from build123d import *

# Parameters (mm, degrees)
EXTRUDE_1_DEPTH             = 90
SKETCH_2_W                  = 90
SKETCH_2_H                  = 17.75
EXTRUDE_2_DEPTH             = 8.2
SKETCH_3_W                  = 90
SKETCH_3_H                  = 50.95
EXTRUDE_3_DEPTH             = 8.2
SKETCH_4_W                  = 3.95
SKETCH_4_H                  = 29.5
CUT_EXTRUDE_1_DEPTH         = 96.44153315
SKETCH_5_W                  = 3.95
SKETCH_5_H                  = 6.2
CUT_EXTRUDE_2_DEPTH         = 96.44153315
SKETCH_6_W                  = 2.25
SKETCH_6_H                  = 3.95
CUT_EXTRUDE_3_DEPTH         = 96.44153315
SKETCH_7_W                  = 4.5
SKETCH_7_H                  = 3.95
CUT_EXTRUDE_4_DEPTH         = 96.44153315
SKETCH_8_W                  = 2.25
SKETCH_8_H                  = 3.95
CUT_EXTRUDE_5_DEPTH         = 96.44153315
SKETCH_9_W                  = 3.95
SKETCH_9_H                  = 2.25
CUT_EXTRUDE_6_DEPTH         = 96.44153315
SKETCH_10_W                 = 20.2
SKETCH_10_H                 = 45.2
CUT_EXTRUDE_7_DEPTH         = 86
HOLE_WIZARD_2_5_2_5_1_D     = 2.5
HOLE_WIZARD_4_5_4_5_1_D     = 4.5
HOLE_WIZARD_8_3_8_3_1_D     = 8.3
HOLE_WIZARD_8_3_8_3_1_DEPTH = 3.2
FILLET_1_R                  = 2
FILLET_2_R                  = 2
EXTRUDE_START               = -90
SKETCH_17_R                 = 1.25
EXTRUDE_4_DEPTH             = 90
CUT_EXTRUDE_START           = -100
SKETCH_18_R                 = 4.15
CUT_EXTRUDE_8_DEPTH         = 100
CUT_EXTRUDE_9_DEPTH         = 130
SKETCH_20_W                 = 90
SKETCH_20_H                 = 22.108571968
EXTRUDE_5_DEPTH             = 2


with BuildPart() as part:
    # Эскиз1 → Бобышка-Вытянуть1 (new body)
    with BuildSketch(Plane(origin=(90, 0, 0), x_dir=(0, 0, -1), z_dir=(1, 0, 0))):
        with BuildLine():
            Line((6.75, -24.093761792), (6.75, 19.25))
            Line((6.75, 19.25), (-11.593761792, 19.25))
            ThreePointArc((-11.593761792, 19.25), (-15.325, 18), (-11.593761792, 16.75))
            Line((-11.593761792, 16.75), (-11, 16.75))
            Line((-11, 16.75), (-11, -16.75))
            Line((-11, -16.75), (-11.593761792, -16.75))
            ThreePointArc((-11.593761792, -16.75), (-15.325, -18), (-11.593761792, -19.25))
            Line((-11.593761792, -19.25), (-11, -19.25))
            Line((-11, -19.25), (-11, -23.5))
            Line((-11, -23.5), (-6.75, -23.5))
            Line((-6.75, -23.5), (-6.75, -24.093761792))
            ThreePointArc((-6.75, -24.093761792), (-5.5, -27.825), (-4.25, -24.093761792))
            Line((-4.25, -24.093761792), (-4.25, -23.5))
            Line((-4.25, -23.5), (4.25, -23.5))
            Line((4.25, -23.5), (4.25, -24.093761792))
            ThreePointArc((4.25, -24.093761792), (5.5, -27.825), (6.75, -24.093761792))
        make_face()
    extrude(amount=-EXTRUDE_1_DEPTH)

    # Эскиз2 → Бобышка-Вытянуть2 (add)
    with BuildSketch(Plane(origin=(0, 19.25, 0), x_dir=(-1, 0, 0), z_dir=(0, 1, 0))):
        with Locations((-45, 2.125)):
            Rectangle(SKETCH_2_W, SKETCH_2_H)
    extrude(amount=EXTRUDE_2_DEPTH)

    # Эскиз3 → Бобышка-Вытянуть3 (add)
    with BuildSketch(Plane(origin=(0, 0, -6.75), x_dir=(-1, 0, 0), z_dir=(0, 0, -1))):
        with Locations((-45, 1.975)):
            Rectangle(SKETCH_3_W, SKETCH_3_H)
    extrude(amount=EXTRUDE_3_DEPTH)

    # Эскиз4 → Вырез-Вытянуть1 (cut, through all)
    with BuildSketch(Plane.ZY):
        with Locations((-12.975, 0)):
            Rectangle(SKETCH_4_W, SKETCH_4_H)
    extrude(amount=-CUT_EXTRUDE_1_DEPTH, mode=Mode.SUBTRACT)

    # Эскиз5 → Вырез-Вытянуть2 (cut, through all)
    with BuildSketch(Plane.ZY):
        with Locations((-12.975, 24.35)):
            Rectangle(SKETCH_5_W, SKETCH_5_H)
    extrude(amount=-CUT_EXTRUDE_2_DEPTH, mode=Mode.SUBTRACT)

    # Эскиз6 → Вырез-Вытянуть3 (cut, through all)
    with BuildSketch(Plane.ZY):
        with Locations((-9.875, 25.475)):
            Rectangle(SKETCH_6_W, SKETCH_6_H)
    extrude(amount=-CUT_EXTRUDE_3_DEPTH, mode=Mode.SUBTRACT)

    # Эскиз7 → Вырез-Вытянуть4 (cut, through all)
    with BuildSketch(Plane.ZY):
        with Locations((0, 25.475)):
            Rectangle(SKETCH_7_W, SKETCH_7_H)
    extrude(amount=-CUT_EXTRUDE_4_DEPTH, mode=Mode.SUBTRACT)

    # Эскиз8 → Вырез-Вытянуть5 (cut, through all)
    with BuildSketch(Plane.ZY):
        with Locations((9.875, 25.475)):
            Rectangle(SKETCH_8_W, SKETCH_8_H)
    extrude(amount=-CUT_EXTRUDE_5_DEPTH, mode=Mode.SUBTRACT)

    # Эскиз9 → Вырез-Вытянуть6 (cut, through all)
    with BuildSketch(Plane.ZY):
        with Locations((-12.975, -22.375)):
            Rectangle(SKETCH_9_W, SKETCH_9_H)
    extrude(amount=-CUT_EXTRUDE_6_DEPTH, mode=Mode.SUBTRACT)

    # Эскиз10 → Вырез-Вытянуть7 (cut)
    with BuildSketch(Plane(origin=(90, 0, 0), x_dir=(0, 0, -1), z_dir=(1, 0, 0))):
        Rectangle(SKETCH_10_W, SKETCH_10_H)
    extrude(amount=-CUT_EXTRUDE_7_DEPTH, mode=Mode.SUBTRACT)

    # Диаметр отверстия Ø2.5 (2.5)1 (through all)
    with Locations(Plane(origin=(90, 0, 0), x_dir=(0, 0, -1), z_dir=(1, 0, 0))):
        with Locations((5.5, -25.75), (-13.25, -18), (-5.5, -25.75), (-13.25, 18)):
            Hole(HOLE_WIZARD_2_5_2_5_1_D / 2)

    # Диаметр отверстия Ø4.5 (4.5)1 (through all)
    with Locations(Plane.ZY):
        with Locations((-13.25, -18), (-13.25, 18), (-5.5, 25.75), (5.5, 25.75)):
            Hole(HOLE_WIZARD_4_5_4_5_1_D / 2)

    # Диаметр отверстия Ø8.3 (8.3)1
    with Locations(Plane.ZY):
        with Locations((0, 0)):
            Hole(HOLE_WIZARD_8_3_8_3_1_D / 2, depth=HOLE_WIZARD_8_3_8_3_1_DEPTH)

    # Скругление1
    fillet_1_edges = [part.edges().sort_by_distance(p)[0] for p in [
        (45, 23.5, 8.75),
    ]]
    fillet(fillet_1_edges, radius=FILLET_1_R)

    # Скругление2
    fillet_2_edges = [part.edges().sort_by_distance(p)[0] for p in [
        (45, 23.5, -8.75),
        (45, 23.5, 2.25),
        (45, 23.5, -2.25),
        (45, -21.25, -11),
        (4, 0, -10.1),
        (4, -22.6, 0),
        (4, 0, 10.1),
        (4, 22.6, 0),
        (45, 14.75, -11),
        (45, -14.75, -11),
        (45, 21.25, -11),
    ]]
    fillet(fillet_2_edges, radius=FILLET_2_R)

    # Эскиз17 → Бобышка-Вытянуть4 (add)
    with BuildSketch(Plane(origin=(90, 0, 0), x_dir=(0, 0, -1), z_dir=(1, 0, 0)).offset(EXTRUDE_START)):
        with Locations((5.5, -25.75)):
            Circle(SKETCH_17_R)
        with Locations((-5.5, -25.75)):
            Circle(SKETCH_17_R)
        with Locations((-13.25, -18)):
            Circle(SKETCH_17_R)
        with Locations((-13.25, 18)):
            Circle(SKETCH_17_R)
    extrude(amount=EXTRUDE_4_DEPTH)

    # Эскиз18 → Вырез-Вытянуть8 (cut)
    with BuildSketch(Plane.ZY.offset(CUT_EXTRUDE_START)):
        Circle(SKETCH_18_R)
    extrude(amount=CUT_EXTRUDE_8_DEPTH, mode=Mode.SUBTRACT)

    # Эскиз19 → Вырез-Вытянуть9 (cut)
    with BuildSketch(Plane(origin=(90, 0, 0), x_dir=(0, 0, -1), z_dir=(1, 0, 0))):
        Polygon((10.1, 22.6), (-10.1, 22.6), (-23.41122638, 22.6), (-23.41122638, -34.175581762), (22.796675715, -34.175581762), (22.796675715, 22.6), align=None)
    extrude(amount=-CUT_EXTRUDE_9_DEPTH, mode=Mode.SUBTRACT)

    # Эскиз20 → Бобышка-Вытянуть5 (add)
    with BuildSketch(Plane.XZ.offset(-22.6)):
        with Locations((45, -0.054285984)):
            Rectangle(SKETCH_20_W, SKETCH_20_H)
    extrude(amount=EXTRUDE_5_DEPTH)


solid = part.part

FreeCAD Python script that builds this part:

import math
import FreeCAD as App
import Part
import Sketcher
from FreeCAD import Vector


def edges_at(feature, points):
    """Names of the edges that pass closest to the given points."""
    edges = feature.Shape.Edges
    near = lambda p: min(range(len(edges)), key=lambda i: edges[i].distToShape(Part.Vertex(*p))[0])
    return sorted({f"Edge{near(p) + 1}" for p in points})


def add_polygon(sketch, points):
    """Adds a closed chain of lines whose ends are joined by coincident constraints."""
    first, n = sketch.GeometryCount, len(points)
    for a, b in zip(points, points[1:] + points[:1]):
        sketch.addGeometry(Part.LineSegment(App.Vector(*a, 0), App.Vector(*b, 0)), False)
    for i in range(n):
        sketch.addConstraint(Sketcher.Constraint("Coincident", first + i, 2, first + (i + 1) % n, 1))

doc = App.newDocument("Part")
body = doc.addObject("PartDesign::Body", "Body")

sketch1 = body.newObject("Sketcher::SketchObject", "Sketch")
sketch1.AttachmentSupport = (doc.getObject("YZ_Plane"), [""])
sketch1.MapMode = "FlatFace"
sketch1.AttachmentOffset = App.Placement(Vector(0, 0, 90), App.Rotation())
sketch1.addGeometry([
    Part.LineSegment(Vector(-24.093762, -6.75, 0), Vector(19.25, -6.75, 0)),
    Part.LineSegment(Vector(19.25, -6.75, 0), Vector(19.25, 11.593762, 0)),
    Part.ArcOfCircle(Part.Circle(Vector(18, 13.25, 0), Vector(0, 0, 1), 2.075), math.radians(-52.957329), math.radians(232.957329)),
    Part.LineSegment(Vector(16.75, 11.593762, 0), Vector(16.75, 11, 0)),
    Part.LineSegment(Vector(16.75, 11, 0), Vector(-16.75, 11, 0)),
    Part.LineSegment(Vector(-16.75, 11, 0), Vector(-16.75, 11.593762, 0)),
    Part.ArcOfCircle(Part.Circle(Vector(-18, 13.25, 0), Vector(0, 0, 1), 2.075), math.radians(-52.957329), math.radians(232.957329)),
    Part.LineSegment(Vector(-19.25, 11.593762, 0), Vector(-19.25, 11, 0)),
    Part.LineSegment(Vector(-19.25, 11, 0), Vector(-23.5, 11, 0)),
    Part.LineSegment(Vector(-23.5, 11, 0), Vector(-23.5, 6.75, 0)),
    Part.LineSegment(Vector(-23.5, 6.75, 0), Vector(-24.093762, 6.75, 0)),
    Part.ArcOfCircle(Part.Circle(Vector(-25.75, 5.5, 0), Vector(0, 0, 1), 2.075), math.radians(37.042671), math.radians(322.957329)),
    Part.LineSegment(Vector(-24.093762, 4.25, 0), Vector(-23.5, 4.25, 0)),
    Part.LineSegment(Vector(-23.5, 4.25, 0), Vector(-23.5, -4.25, 0)),
    Part.LineSegment(Vector(-23.5, -4.25, 0), Vector(-24.093762, -4.25, 0)),
    Part.ArcOfCircle(Part.Circle(Vector(-25.75, -5.5, 0), Vector(0, 0, 1), 2.075), math.radians(37.042671), math.radians(322.957329)),
], False)
sketch1.addConstraint([
    Sketcher.Constraint("Coincident", 0, 2, 1, 1),
    Sketcher.Constraint("Coincident", 1, 2, 2, 1),
    Sketcher.Constraint("Coincident", 2, 2, 3, 1),
    Sketcher.Constraint("Coincident", 3, 2, 4, 1),
    Sketcher.Constraint("Coincident", 4, 2, 5, 1),
    Sketcher.Constraint("Coincident", 5, 2, 6, 1),
    Sketcher.Constraint("Coincident", 6, 2, 7, 1),
    Sketcher.Constraint("Coincident", 7, 2, 8, 1),
    Sketcher.Constraint("Coincident", 8, 2, 9, 1),
    Sketcher.Constraint("Coincident", 9, 2, 10, 1),
    Sketcher.Constraint("Coincident", 10, 2, 11, 1),
    Sketcher.Constraint("Coincident", 11, 2, 12, 1),
    Sketcher.Constraint("Coincident", 12, 2, 13, 1),
    Sketcher.Constraint("Coincident", 13, 2, 14, 1),
    Sketcher.Constraint("Coincident", 14, 2, 15, 1),
    Sketcher.Constraint("Coincident", 15, 2, 0, 1),
    Sketcher.Constraint("Horizontal", 0),
    Sketcher.Constraint("Vertical", 1),
    Sketcher.Constraint("Vertical", 3),
    Sketcher.Constraint("Horizontal", 4),
    Sketcher.Constraint("Vertical", 5),
    Sketcher.Constraint("Vertical", 7),
    Sketcher.Constraint("Horizontal", 8),
    Sketcher.Constraint("Vertical", 9),
    Sketcher.Constraint("Horizontal", 10),
    Sketcher.Constraint("Horizontal", 12),
    Sketcher.Constraint("Vertical", 13),
    Sketcher.Constraint("Horizontal", 14),
    Sketcher.Constraint("Equal", 2, 6),
    Sketcher.Constraint("Equal", 6, 11),
    Sketcher.Constraint("Equal", 11, 15),
    Sketcher.Constraint("Symmetric", 2, 3, 6, 3, -2),
    Sketcher.Constraint("Symmetric", 11, 3, 15, 3, -1),
    Sketcher.Constraint("Horizontal", 1, 2, 2, 2),
    Sketcher.Constraint("Horizontal", 2, 2, 5, 2),
    Sketcher.Constraint("Horizontal", 5, 2, 6, 2),
    Sketcher.Constraint("Horizontal", 4, 2, 7, 2),
    Sketcher.Constraint("Vertical", 10, 2, 11, 2),
    Sketcher.Constraint("Vertical", 9, 2, 12, 2),
    Sketcher.Constraint("Vertical", 11, 2, 14, 2),
    Sketcher.Constraint("Vertical", 14, 2, 15, 2),
    Sketcher.Constraint("Equal", 14, 3),
    Sketcher.Constraint("Equal", 8, 9),
    Sketcher.Constraint("DistanceX", 4, 2, 4, 1, 33.5),
    Sketcher.Constraint("DistanceY", 13, 2, 13, 1, 8.5),
    Sketcher.Constraint("DistanceX", -1, 1, 2, 3, 18.0),
    Sketcher.Constraint("DistanceY", -1, 1, 3, 2, 11.0),
    Sketcher.Constraint("Radius", 2, 2.075),
    Sketcher.Constraint("DistanceY", 15, 3, 11, 3, 11.0),
    Sketcher.Constraint("DistanceY", 0, 2, 2, 3, 20.0),
])
pad1 = body.newObject("PartDesign::Pad", "Pad")
pad1.Profile = sketch1
pad1.Length = 90
pad1.Reversed = True

sketch2 = body.newObject("Sketcher::SketchObject", "Sketch001")
sketch2.AttachmentSupport = (doc.getObject("XZ_Plane"), [""])
sketch2.MapMode = "FlatFace"
sketch2.AttachmentOffset = App.Placement(Vector(0, 0, -19.25), App.Rotation())
add_polygon(sketch2, [(90, 11), (90, -6.75), (0, -6.75), (0, 11)])
sketch2.addConstraint([
    Sketcher.Constraint("Vertical", 0),
    Sketcher.Constraint("Horizontal", 1),
    Sketcher.Constraint("Vertical", 2),
    Sketcher.Constraint("Horizontal", 3),
    Sketcher.Constraint("PointOnObject", 1, 2, -2),
    Sketcher.Constraint("DistanceX", 1, 2, 1, 1, 90.0),
    Sketcher.Constraint("DistanceY", -1, 1, 2, 2, 11.0),
    Sketcher.Constraint("DistanceY", 0, 2, 0, 1, 17.75),
])
pad2 = body.newObject("PartDesign::Pad", "Pad001")
pad2.Profile = sketch2
pad2.Length = 8.2
pad2.Reversed = True

sketch3 = body.newObject("Sketcher::SketchObject", "Sketch002")
sketch3.AttachmentSupport = (doc.getObject("XY_Plane"), [""])
sketch3.MapMode = "FlatFace"
sketch3.AttachmentOffset = App.Placement(Vector(0, 0, -6.75), App.Rotation())
add_polygon(sketch3, [(90, 27.45), (90, -23.5), (0, -23.5), (0, 27.45)])
sketch3.addConstraint([
    Sketcher.Constraint("Vertical", 0),
    Sketcher.Constraint("Horizontal", 1),
    Sketcher.Constraint("Vertical", 2),
    Sketcher.Constraint("Horizontal", 3),
    Sketcher.Constraint("PointOnObject", 1, 2, -2),
    Sketcher.Constraint("DistanceX", 1, 2, 1, 1, 90.0),
    Sketcher.Constraint("DistanceY", 0, 2, 0, 1, 50.95),
    Sketcher.Constraint("DistanceY", 0, 2, -1, 1, 23.5),
])
pad3 = body.newObject("PartDesign::Pad", "Pad002")
pad3.Profile = sketch3
pad3.Length = 8.2
pad3.Reversed = True

sketch4 = body.newObject("Sketcher::SketchObject", "Sketch003")
sketch4.AttachmentSupport = (doc.getObject("YZ_Plane"), [""])
sketch4.MapMode = "FlatFace"
add_polygon(sketch4, [(14.75, -14.95), (-14.75, -14.95), (-14.75, -11), (14.75, -11)])
sketch4.addConstraint([
    Sketcher.Constraint("Horizontal", 0),
    Sketcher.Constraint("Vertical", 1),
    Sketcher.Constraint("Horizontal", 2),
    Sketcher.Constraint("Vertical", 3),
    Sketcher.Constraint("DistanceX", 0, 2, 0, 1, 29.5),
    Sketcher.Constraint("DistanceY", 1, 2, -1, 1, 11.0),
    Sketcher.Constraint("DistanceY", 1, 1, 1, 2, 3.95),
    Sketcher.Constraint("DistanceX", 0, 2, -1, 1, 14.75),
])
pocket1 = body.newObject("PartDesign::Pocket", "Pocket")
pocket1.Profile = sketch4
pocket1.Type = "ThroughAll"
pocket1.Reversed = True

sketch5 = body.newObject("Sketcher::SketchObject", "Sketch004")
sketch5.AttachmentSupport = (doc.getObject("YZ_Plane"), [""])
sketch5.MapMode = "FlatFace"
add_polygon(sketch5, [(27.45, -14.95), (21.25, -14.95), (21.25, -11), (27.45, -11)])
sketch5.addConstraint([
    Sketcher.Constraint("Horizontal", 0),
    Sketcher.Constraint("Vertical", 1),
    Sketcher.Constraint("Horizontal", 2),
    Sketcher.Constraint("Vertical", 3),
    Sketcher.Constraint("DistanceX", 0, 2, 0, 1, 6.2),
    Sketcher.Constraint("DistanceY", 1, 2, -1, 1, 11.0),
    Sketcher.Constraint("DistanceY", 1, 1, 1, 2, 3.95),
    Sketcher.Constraint("DistanceX", -1, 1, 0, 2, 21.25),
])
pocket2 = body.newObject("PartDesign::Pocket", "Pocket001")
pocket2.Profile = sketch5
pocket2.Type = "ThroughAll"
pocket2.Reversed = True

sketch6 = body.newObject("Sketcher::SketchObject", "Sketch005")
sketch6.AttachmentSupport = (doc.getObject("YZ_Plane"), [""])
sketch6.MapMode = "FlatFace"
add_polygon(sketch6, [(27.45, -11), (23.5, -11), (23.5, -8.75), (27.45, -8.75)])
sketch6.addConstraint([
    Sketcher.Constraint("Horizontal", 0),
    Sketcher.Constraint("Vertical", 1),
    Sketcher.Constraint("Horizontal", 2),
    Sketcher.Constraint("Vertical", 3),
    Sketcher.Constraint("DistanceY", 0, 2, -1, 1, 11.0),
    Sketcher.Constraint("DistanceX", 0, 2, 0, 1, 3.95),
    Sketcher.Constraint("DistanceY", 1, 1, 1, 2, 2.25),
    Sketcher.Constraint("DistanceX", -1, 1, 0, 2, 23.5),
])
pocket3 = body.newObject("PartDesign::Pocket", "Pocket002")
pocket3.Profile = sketch6
pocket3.Type = "ThroughAll"
pocket3.Reversed = True

sketch7 = body.newObject("Sketcher::SketchObject", "Sketch006")
sketch7.AttachmentSupport = (doc.getObject("YZ_Plane"), [""])
sketch7.MapMode = "FlatFace"
add_polygon(sketch7, [(27.45, -2.25), (23.5, -2.25), (23.5, 2.25), (27.45, 2.25)])
sketch7.addConstraint([
    Sketcher.Constraint("Horizontal", 0),
    Sketcher.Constraint("Vertical", 1),
    Sketcher.Constraint("Horizontal", 2),
    Sketcher.Constraint("Vertical", 3),
    Sketcher.Constraint("DistanceY", 1, 1, 1, 2, 4.5),
    Sketcher.Constraint("DistanceX", 0, 2, 0, 1, 3.95),
    Sketcher.Constraint("DistanceX", -1, 1, 0, 2, 23.5),
    Sketcher.Constraint("DistanceY", 0, 2, -1, 1, 2.25),
])
pocket4 = body.newObject("PartDesign::Pocket", "Pocket003")
pocket4.Profile = sketch7
pocket4.Type = "ThroughAll"
pocket4.Reversed = True

sketch8 = body.newObject("Sketcher::SketchObject", "Sketch007")
sketch8.AttachmentSupport = (doc.getObject("YZ_Plane"), [""])
sketch8.MapMode = "FlatFace"
add_polygon(sketch8, [(27.45, 8.75), (23.5, 8.75), (23.5, 11), (27.45, 11)])
sketch8.addConstraint([
    Sketcher.Constraint("Horizontal", 0),
    Sketcher.Constraint("Vertical", 1),
    Sketcher.Constraint("Horizontal", 2),
    Sketcher.Constraint("Vertical", 3),
    Sketcher.Constraint("DistanceY", -1, 1, 1, 2, 11.0),
    Sketcher.Constraint("DistanceX", 0, 2, 0, 1, 3.95),
    Sketcher.Constraint("DistanceY", 1, 1, 1, 2, 2.25),
    Sketcher.Constraint("DistanceX", -1, 1, 0, 2, 23.5),
])
pocket5 = body.newObject("PartDesign::Pocket", "Pocket004")
pocket5.Profile = sketch8
pocket5.Type = "ThroughAll"
pocket5.Reversed = True

sketch9 = body.newObject("Sketcher::SketchObject", "Sketch008")
sketch9.AttachmentSupport = (doc.getObject("YZ_Plane"), [""])
sketch9.MapMode = "FlatFace"
add_polygon(sketch9, [(-21.25, -14.95), (-23.5, -14.95), (-23.5, -11), (-21.25, -11)])
sketch9.addConstraint([
    Sketcher.Constraint("Horizontal", 0),
    Sketcher.Constraint("Vertical", 1),
    Sketcher.Constraint("Horizontal", 2),
    Sketcher.Constraint("Vertical", 3),
    Sketcher.Constraint("DistanceY", 1, 2, -1, 1, 11.0),
    Sketcher.Constraint("DistanceX", 0, 2, 0, 1, 2.25),
    Sketcher.Constraint("DistanceY", 1, 1, 1, 2, 3.95),
    Sketcher.Constraint("DistanceX", 0, 2, -1, 1, 23.5),
])
pocket6 = body.newObject("PartDesign::Pocket", "Pocket005")
pocket6.Profile = sketch9
pocket6.Type = "ThroughAll"
pocket6.Reversed = True

sketch10 = body.newObject("Sketcher::SketchObject", "Sketch009")
sketch10.AttachmentSupport = (doc.getObject("YZ_Plane"), [""])
sketch10.MapMode = "FlatFace"
sketch10.AttachmentOffset = App.Placement(Vector(0, 0, 90), App.Rotation())
add_polygon(sketch10, [(22.6, 10.1), (-22.6, 10.1), (-22.6, -10.1), (22.6, -10.1)])
sketch10.addConstraint([
    Sketcher.Constraint("Horizontal", 0),
    Sketcher.Constraint("Vertical", 1),
    Sketcher.Constraint("Horizontal", 2),
    Sketcher.Constraint("Vertical", 3),
    Sketcher.Constraint("Symmetric", 0, 2, 2, 2, -1, 1),
    Sketcher.Constraint("DistanceX", 0, 2, 0, 1, 45.2),
    Sketcher.Constraint("DistanceY", 1, 2, 1, 1, 20.2),
])
pocket7 = body.newObject("PartDesign::Pocket", "Pocket006")
pocket7.Profile = sketch10
pocket7.Length = 86

sketch11 = body.newObject("Sketcher::SketchObject", "Sketch010")
sketch11.AttachmentSupport = (doc.getObject("YZ_Plane"), [""])
sketch11.MapMode = "FlatFace"
sketch11.AttachmentOffset = App.Placement(Vector(0, 0, 90), App.Rotation())
sketch11.addGeometry([
    Part.Circle(Vector(-25.75, -5.5, 0), Vector(0, 0, 1), 1.25),
    Part.Circle(Vector(-18, 13.25, 0), Vector(0, 0, 1), 1.25),
    Part.Circle(Vector(-25.75, 5.5, 0), Vector(0, 0, 1), 1.25),
    Part.Circle(Vector(18, 13.25, 0), Vector(0, 0, 1), 1.25),
], False)
sketch11.addConstraint([
    Sketcher.Constraint("Equal", 0, 1),
    Sketcher.Constraint("Equal", 1, 2),
    Sketcher.Constraint("Equal", 2, 3),
    Sketcher.Constraint("Symmetric", 1, 3, 3, 3, -2),
    Sketcher.Constraint("Symmetric", 0, 3, 2, 3, -1),
    Sketcher.Constraint("Diameter", 0, 2.5),
    Sketcher.Constraint("DistanceX", 1, 3, -1, 1, 18.0),
    Sketcher.Constraint("DistanceY", 0, 3, 2, 3, 11.0),
    Sketcher.Constraint("DistanceX", 0, 3, -1, 1, 25.75),
    Sketcher.Constraint("DistanceY", -1, 1, 1, 3, 13.25),
])
doc.recompute()
hole = body.newObject("PartDesign::Hole", "Hole")
hole.Profile = sketch11
hole.ThreadType = "None"
hole.Diameter = 2.5
hole.DepthType = "ThroughAll"

sketch12 = body.newObject("Sketcher::SketchObject", "Sketch011")
sketch12.AttachmentSupport = (doc.getObject("YZ_Plane"), [""])
sketch12.MapMode = "FlatFace"
sketch12.addGeometry([
    Part.Circle(Vector(-18, -13.25, 0), Vector(0, 0, 1), 2.25),
    Part.Circle(Vector(18, -13.25, 0), Vector(0, 0, 1), 2.25),
    Part.Circle(Vector(25.75, -5.5, 0), Vector(0, 0, 1), 2.25),
    Part.Circle(Vector(25.75, 5.5, 0), Vector(0, 0, 1), 2.25),
], False)
sketch12.addConstraint([
    Sketcher.Constraint("Equal", 0, 1),
    Sketcher.Constraint("Equal", 1, 2),
    Sketcher.Constraint("Equal", 2, 3),
    Sketcher.Constraint("Symmetric", 0, 3, 1, 3, -2),
    Sketcher.Constraint("Symmetric", 2, 3, 3, 3, -1),
    Sketcher.Constraint("Diameter", 0, 4.5),
    Sketcher.Constraint("DistanceX", 0, 3, -1, 1, 18.0),
    Sketcher.Constraint("DistanceY", 2, 3, 3, 3, 11.0),
    Sketcher.Constraint("DistanceY", 0, 3, -1, 1, 13.25),
    Sketcher.Constraint("DistanceX", -1, 1, 2, 3, 25.75),
])
doc.recompute()
hole2 = body.newObject("PartDesign::Hole", "Hole001")
hole2.Profile = sketch12
hole2.ThreadType = "None"
hole2.Diameter = 4.5
hole2.DepthType = "ThroughAll"
hole2.Reversed = True

sketch13 = body.newObject("Sketcher::SketchObject", "Sketch012")
sketch13.AttachmentSupport = (doc.getObject("YZ_Plane"), [""])
sketch13.MapMode = "FlatFace"
sketch13.addGeometry(Part.Circle(Vector(0, 0, 0), Vector(0, 0, 1), 4.15), False)
sketch13.addConstraint([
    Sketcher.Constraint("Coincident", 0, 3, -1, 1),
    Sketcher.Constraint("Diameter", 0, 8.3),
])
doc.recompute()
hole3 = body.newObject("PartDesign::Hole", "Hole002")
hole3.Profile = sketch13
hole3.ThreadType = "None"
hole3.Diameter = 8.3
hole3.DepthType = "Dimension"
hole3.Depth = 3.2
hole3.DrillPoint = "Flat"
hole3.Reversed = True
doc.recompute()

fillet = body.newObject("PartDesign::Fillet", "Fillet")
fillet.Base = (hole3, edges_at(hole3, [(45, 23.5, 8.75)]))
fillet.Radius = 2
doc.recompute()

fillet2 = body.newObject("PartDesign::Fillet", "Fillet001")
fillet2.Base = (fillet, edges_at(fillet, [
    (45, 23.5, -8.75),
    (45, 23.5, 2.25),
    (45, 23.5, -2.25),
    (45, -21.25, -11),
    (4, 0, -10.1),
    (4, -22.6, 0),
    (4, 0, 10.1),
    (4, 22.6, 0),
    (45, 14.75, -11),
    (45, -14.75, -11),
    (45, 21.25, -11),
]))
fillet2.Radius = 2

sketch14 = body.newObject("Sketcher::SketchObject", "Sketch013")
sketch14.AttachmentSupport = (doc.getObject("YZ_Plane"), [""])
sketch14.MapMode = "FlatFace"
sketch14.addGeometry([
    Part.Circle(Vector(-25.75, -5.5, 0), Vector(0, 0, 1), 1.25),
    Part.Circle(Vector(-25.75, 5.5, 0), Vector(0, 0, 1), 1.25),
    Part.Circle(Vector(-18, 13.25, 0), Vector(0, 0, 1), 1.25),
    Part.Circle(Vector(18, 13.25, 0), Vector(0, 0, 1), 1.25),
], False)
sketch14.addConstraint([
    Sketcher.Constraint("Equal", 0, 1),
    Sketcher.Constraint("Equal", 1, 2),
    Sketcher.Constraint("Equal", 2, 3),
    Sketcher.Constraint("Symmetric", 2, 3, 3, 3, -2),
    Sketcher.Constraint("Symmetric", 0, 3, 1, 3, -1),
    Sketcher.Constraint("Diameter", 0, 2.5),
    Sketcher.Constraint("DistanceX", 2, 3, -1, 1, 18.0),
    Sketcher.Constraint("DistanceY", 0, 3, 1, 3, 11.0),
    Sketcher.Constraint("DistanceX", 0, 3, -1, 1, 25.75),
    Sketcher.Constraint("DistanceY", -1, 1, 2, 3, 13.25),
])
pad4 = body.newObject("PartDesign::Pad", "Pad003")
pad4.Profile = sketch14
pad4.Length = 90

sketch15 = body.newObject("Sketcher::SketchObject", "Sketch014")
sketch15.AttachmentSupport = (doc.getObject("YZ_Plane"), [""])
sketch15.MapMode = "FlatFace"
sketch15.AttachmentOffset = App.Placement(Vector(0, 0, 100), App.Rotation())
sketch15.addGeometry(Part.Circle(Vector(0, 0, 0), Vector(0, 0, 1), 4.15), False)
sketch15.addConstraint([
    Sketcher.Constraint("Coincident", 0, 3, -1, 1),
    Sketcher.Constraint("Diameter", 0, 8.3),
])
pocket8 = body.newObject("PartDesign::Pocket", "Pocket007")
pocket8.Profile = sketch15
pocket8.Length = 100

sketch16 = body.newObject("Sketcher::SketchObject", "Sketch015")
sketch16.AttachmentSupport = (doc.getObject("YZ_Plane"), [""])
sketch16.MapMode = "FlatFace"
sketch16.AttachmentOffset = App.Placement(Vector(0, 0, 90), App.Rotation())
add_polygon(sketch16, [(22.6, 23.411226), (-34.175582, 23.411226), (-34.175582, -22.796676), (22.6, -22.796676)])
sketch16.addConstraint([
    Sketcher.Constraint("Horizontal", 0),
    Sketcher.Constraint("Vertical", 1),
    Sketcher.Constraint("Horizontal", 2),
    Sketcher.Constraint("Vertical", 3),
    Sketcher.Constraint("DistanceX", -1, 1, 2, 2, 22.6),
    Sketcher.Constraint("DistanceX", 0, 2, 0, 1, 56.775582),
    Sketcher.Constraint("DistanceY", 1, 2, 1, 1, 46.207902),
    Sketcher.Constraint("DistanceY", -1, 1, 0, 2, 23.411226),
])
pocket9 = body.newObject("PartDesign::Pocket", "Pocket008")
pocket9.Profile = sketch16
pocket9.Length = 130

sketch17 = body.newObject("Sketcher::SketchObject", "Sketch016")
sketch17.AttachmentSupport = (doc.getObject("XZ_Plane"), [""])
sketch17.MapMode = "FlatFace"
sketch17.AttachmentOffset = App.Placement(Vector(0, 0, -22.6), App.Rotation())
add_polygon(sketch17, [(0, 11), (0, -11.108572), (90, -11.108572), (90, 11)])
sketch17.addConstraint([
    Sketcher.Constraint("Vertical", 0),
    Sketcher.Constraint("Horizontal", 1),
    Sketcher.Constraint("Vertical", 2),
    Sketcher.Constraint("Horizontal", 3),
    Sketcher.Constraint("PointOnObject", 0, 2, -2),
    Sketcher.Constraint("DistanceX", 1, 1, 1, 2, 90.0),
    Sketcher.Constraint("DistanceY", -1, 1, 2, 2, 11.0),
    Sketcher.Constraint("DistanceY", 0, 2, 0, 1, 22.108572),
])
pad5 = body.newObject("PartDesign::Pad", "Pad004")
pad5.Profile = sketch17
pad5.Length = 2

doc.recompute()
